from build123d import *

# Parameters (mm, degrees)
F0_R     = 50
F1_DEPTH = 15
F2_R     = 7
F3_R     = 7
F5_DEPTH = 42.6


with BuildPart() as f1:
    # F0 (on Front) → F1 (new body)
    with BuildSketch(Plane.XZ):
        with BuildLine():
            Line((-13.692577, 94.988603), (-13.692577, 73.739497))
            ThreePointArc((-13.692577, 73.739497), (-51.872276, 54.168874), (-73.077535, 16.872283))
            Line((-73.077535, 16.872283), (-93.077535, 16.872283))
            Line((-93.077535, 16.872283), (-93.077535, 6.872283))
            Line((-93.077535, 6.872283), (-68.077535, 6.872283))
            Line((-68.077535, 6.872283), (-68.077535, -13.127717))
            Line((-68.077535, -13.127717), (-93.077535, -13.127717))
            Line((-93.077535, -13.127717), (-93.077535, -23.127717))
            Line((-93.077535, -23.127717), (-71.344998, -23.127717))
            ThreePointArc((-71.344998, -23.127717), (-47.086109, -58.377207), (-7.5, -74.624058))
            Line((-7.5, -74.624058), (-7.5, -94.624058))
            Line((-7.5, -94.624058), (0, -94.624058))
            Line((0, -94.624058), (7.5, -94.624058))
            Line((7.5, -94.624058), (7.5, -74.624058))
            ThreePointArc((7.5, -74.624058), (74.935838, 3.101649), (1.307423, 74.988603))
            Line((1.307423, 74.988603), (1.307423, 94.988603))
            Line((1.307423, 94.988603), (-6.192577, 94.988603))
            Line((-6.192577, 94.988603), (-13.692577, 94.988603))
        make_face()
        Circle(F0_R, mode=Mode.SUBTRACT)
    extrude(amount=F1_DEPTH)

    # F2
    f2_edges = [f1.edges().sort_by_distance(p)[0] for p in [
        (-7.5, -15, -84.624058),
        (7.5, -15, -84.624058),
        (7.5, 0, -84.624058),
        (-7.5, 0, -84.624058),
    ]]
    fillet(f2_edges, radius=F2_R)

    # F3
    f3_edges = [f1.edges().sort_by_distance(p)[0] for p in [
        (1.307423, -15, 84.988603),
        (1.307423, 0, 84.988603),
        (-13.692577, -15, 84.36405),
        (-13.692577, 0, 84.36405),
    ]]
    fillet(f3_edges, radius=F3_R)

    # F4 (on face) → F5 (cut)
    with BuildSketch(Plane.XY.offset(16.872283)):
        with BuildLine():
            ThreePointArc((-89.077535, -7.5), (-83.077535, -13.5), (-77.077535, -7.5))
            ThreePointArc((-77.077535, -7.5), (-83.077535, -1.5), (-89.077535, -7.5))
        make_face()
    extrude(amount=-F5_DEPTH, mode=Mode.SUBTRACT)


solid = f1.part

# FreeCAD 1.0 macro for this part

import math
import FreeCAD as App
import Part
import Sketcher
Q = App.Units.Quantity


def edges_at(feature, points):
    """Names of the edges that pass closest to the given points."""
    edges = feature.Shape.Edges
    near = lambda p: min(range(len(edges)), key=lambda i: edges[i].distToShape(Part.Vertex(*p))[0])
    return sorted({f"Edge{near(p) + 1}" for p in points})

doc = App.newDocument("Part")
body = doc.addObject("PartDesign::Body", "Body")

sketch1 = body.newObject("Sketcher::SketchObject", "Sketch")
sketch1.AttachmentSupport = (doc.getObject("XZ_Plane"), [""])
sketch1.MapMode = "FlatFace"
sketch1.addGeometry([
    Part.LineSegment(App.Vector(-14, 95, 0), App.Vector(-14, 74, 0)),
    Part.ArcOfCircle(Part.Circle(App.Vector(0, 0, 0), App.Vector(0, 0, 1), 75), math.radians(101), math.radians(167)),
    Part.LineSegment(App.Vector(-73, 17, 0), App.Vector(-93, 17, 0)),
    Part.LineSegment(App.Vector(-93, 17, 0), App.Vector(-93, 7, 0)),
    Part.LineSegment(App.Vector(-93, 7, 0), App.Vector(-68, 7, 0)),
    Part.LineSegment(App.Vector(-68, 7, 0), App.Vector(-68, -13, 0)),
    Part.LineSegment(App.Vector(-68, -13, 0), App.Vector(-93, -13, 0)),
    Part.LineSegment(App.Vector(-93, -13, 0), App.Vector(-93, -23, 0)),
    Part.LineSegment(App.Vector(-93, -23, 0), App.Vector(-71, -23, 0)),
    Part.ArcOfCircle(Part.Circle(App.Vector(0, 0, 0), App.Vector(0, 0, 1), 75), math.radians(-162), math.radians(-96)),
    Part.LineSegment(App.Vector(-8, -75, 0), App.Vector(-8, -95, 0)),
    Part.LineSegment(App.Vector(-8, -95, 0), App.Vector(8, -95, 0)),
    Part.LineSegment(App.Vector(8, -95, 0), App.Vector(8, -75, 0)),
    Part.ArcOfCircle(Part.Circle(App.Vector(0, 0, 0), App.Vector(0, 0, 1), 75), math.radians(-84), math.radians(89)),
    Part.LineSegment(App.Vector(1, 75, 0), App.Vector(1, 95, 0)),
    Part.LineSegment(App.Vector(1, 95, 0), App.Vector(-14, 95, 0)),
    Part.Circle(App.Vector(0, 0, 0), App.Vector(0, 0, 1), 50),
], False)
sketch1.addConstraint([
    Sketcher.Constraint("Coincident", 0, 2, 1, 1),
    Sketcher.Constraint("Coincident", 1, 2, 2, 1),
    Sketcher.Constraint("Coincident", 2, 2, 3, 1),
    Sketcher.Constraint("Coincident", 3, 2, 4, 1),
    Sketcher.Constraint("Coincident", 4, 2, 5, 1),
    Sketcher.Constraint("Coincident", 5, 2, 6, 1),
    Sketcher.Constraint("Coincident", 6, 2, 7, 1),
    Sketcher.Constraint("Coincident", 7, 2, 8, 1),
    Sketcher.Constraint("Coincident", 8, 2, 9, 1),
    Sketcher.Constraint("Coincident", 9, 2, 10, 1),
    Sketcher.Constraint("Coincident", 10, 2, 11, 1),
    Sketcher.Constraint("Coincident", 11, 2, 12, 1),
    Sketcher.Constraint("Coincident", 12, 2, 13, 1),
    Sketcher.Constraint("Coincident", 13, 2, 14, 1),
    Sketcher.Constraint("Coincident", 14, 2, 15, 1),
    Sketcher.Constraint("Coincident", 15, 2, 0, 1),
    Sketcher.Constraint("Vertical", 0),
    Sketcher.Constraint("Horizontal", 2),
    Sketcher.Constraint("Vertical", 3),
    Sketcher.Constraint("Horizontal", 4),
    Sketcher.Constraint("Vertical", 5),
    Sketcher.Constraint("Horizontal", 6),
    Sketcher.Constraint("Vertical", 7),
    Sketcher.Constraint("Horizontal", 8),
    Sketcher.Constraint("Vertical", 10),
    Sketcher.Constraint("Horizontal", 11),
    Sketcher.Constraint("Vertical", 12),
    Sketcher.Constraint("Vertical", 14),
    Sketcher.Constraint("Horizontal", 15),
    Sketcher.Constraint("Coincident", 1, 3, -1, 1),
    Sketcher.Constraint("Coincident", 9, 3, -1, 1),
    Sketcher.Constraint("Coincident", 13, 3, -1, 1),
    Sketcher.Constraint("Coincident", 16, 3, -1, 1),
    Sketcher.Constraint("Symmetric", 9, 2, 12, 2, -2),
    Sketcher.Constraint("Vertical", 3, 2, 6, 2),
    Sketcher.Constraint("Equal", 11, 15),
    Sketcher.Constraint("Equal", 2, 5),
    Sketcher.Constraint("Equal", 3, 7),
    Sketcher.Constraint("Equal", 5, 10),
    Sketcher.Constraint("Equal", 12, 14),
    Sketcher.Constraint("Diameter", 16, Q("100 mm")),
    Sketcher.Constraint("Radius", 13, Q("75 mm")),
    Sketcher.Constraint("DistanceX", 2, 2, 2, 1, Q("20 mm")),
    Sketcher.Constraint("DistanceX", 4, 1, 4, 2, Q("25 mm")),
    Sketcher.Constraint("DistanceX", 11, 1, 11, 2, Q("15 mm")),
    Sketcher.Constraint("DistanceY", 3, 2, 3, 1, Q("10 mm")),
    Sketcher.Constraint("DistanceX", 8, 2, -1, 1, Q("71.344998 mm")),
    Sketcher.Constraint("Radius", 1, Q("75.000005 mm")),
    Sketcher.Constraint("DistanceY", 1, 3, 0, 2, Q("73.739501 mm")),
])
pad1 = body.newObject("PartDesign::Pad", "Pad")
pad1.Profile = sketch1
pad1.Length = 15
doc.recompute()

fillet = body.newObject("PartDesign::Fillet", "Fillet")
fillet.Base = (pad1, edges_at(pad1, [
    (-7.5, -15, -84.624),
    (7.5, -15, -84.624),
    (7.5, 0, -84.624),
    (-7.5, 0, -84.624),
]))
fillet.Radius = 7
doc.recompute()

fillet2 = body.newObject("PartDesign::Fillet", "Fillet001")
fillet2.Base = (fillet, edges_at(fillet, [
    (1.307, -15, 84.989),
    (1.307, 0, 84.989),
    (-13.693, -15, 84.364),
    (-13.693, 0, 84.364),
]))
fillet2.Radius = 7

sketch2 = body.newObject("Sketcher::SketchObject", "Sketch001")
sketch2.AttachmentSupport = (doc.getObject("XY_Plane"), [""])
sketch2.MapMode = "FlatFace"
sketch2.AttachmentOffset = App.Placement(App.Vector(0, 0, 16.872283), App.Rotation())
sketch2.addGeometry(Part.Circle(App.Vector(-83, -8, 0), App.Vector(0, 0, 1), 6), False)
sketch2.addConstraint([
    Sketcher.Constraint("Diameter", 0, Q("12 mm")),
    Sketcher.Constraint("DistanceY", 0, 3, -1, 1, Q("7.5 mm")),
    Sketcher.Constraint("DistanceX", 0, 3, -1, 1, Q("83.077535 mm")),
])
pocket1 = body.newObject("PartDesign::Pocket", "Pocket")
pocket1.Profile = sketch2
pocket1.Length = 42.6

doc.recompute()
